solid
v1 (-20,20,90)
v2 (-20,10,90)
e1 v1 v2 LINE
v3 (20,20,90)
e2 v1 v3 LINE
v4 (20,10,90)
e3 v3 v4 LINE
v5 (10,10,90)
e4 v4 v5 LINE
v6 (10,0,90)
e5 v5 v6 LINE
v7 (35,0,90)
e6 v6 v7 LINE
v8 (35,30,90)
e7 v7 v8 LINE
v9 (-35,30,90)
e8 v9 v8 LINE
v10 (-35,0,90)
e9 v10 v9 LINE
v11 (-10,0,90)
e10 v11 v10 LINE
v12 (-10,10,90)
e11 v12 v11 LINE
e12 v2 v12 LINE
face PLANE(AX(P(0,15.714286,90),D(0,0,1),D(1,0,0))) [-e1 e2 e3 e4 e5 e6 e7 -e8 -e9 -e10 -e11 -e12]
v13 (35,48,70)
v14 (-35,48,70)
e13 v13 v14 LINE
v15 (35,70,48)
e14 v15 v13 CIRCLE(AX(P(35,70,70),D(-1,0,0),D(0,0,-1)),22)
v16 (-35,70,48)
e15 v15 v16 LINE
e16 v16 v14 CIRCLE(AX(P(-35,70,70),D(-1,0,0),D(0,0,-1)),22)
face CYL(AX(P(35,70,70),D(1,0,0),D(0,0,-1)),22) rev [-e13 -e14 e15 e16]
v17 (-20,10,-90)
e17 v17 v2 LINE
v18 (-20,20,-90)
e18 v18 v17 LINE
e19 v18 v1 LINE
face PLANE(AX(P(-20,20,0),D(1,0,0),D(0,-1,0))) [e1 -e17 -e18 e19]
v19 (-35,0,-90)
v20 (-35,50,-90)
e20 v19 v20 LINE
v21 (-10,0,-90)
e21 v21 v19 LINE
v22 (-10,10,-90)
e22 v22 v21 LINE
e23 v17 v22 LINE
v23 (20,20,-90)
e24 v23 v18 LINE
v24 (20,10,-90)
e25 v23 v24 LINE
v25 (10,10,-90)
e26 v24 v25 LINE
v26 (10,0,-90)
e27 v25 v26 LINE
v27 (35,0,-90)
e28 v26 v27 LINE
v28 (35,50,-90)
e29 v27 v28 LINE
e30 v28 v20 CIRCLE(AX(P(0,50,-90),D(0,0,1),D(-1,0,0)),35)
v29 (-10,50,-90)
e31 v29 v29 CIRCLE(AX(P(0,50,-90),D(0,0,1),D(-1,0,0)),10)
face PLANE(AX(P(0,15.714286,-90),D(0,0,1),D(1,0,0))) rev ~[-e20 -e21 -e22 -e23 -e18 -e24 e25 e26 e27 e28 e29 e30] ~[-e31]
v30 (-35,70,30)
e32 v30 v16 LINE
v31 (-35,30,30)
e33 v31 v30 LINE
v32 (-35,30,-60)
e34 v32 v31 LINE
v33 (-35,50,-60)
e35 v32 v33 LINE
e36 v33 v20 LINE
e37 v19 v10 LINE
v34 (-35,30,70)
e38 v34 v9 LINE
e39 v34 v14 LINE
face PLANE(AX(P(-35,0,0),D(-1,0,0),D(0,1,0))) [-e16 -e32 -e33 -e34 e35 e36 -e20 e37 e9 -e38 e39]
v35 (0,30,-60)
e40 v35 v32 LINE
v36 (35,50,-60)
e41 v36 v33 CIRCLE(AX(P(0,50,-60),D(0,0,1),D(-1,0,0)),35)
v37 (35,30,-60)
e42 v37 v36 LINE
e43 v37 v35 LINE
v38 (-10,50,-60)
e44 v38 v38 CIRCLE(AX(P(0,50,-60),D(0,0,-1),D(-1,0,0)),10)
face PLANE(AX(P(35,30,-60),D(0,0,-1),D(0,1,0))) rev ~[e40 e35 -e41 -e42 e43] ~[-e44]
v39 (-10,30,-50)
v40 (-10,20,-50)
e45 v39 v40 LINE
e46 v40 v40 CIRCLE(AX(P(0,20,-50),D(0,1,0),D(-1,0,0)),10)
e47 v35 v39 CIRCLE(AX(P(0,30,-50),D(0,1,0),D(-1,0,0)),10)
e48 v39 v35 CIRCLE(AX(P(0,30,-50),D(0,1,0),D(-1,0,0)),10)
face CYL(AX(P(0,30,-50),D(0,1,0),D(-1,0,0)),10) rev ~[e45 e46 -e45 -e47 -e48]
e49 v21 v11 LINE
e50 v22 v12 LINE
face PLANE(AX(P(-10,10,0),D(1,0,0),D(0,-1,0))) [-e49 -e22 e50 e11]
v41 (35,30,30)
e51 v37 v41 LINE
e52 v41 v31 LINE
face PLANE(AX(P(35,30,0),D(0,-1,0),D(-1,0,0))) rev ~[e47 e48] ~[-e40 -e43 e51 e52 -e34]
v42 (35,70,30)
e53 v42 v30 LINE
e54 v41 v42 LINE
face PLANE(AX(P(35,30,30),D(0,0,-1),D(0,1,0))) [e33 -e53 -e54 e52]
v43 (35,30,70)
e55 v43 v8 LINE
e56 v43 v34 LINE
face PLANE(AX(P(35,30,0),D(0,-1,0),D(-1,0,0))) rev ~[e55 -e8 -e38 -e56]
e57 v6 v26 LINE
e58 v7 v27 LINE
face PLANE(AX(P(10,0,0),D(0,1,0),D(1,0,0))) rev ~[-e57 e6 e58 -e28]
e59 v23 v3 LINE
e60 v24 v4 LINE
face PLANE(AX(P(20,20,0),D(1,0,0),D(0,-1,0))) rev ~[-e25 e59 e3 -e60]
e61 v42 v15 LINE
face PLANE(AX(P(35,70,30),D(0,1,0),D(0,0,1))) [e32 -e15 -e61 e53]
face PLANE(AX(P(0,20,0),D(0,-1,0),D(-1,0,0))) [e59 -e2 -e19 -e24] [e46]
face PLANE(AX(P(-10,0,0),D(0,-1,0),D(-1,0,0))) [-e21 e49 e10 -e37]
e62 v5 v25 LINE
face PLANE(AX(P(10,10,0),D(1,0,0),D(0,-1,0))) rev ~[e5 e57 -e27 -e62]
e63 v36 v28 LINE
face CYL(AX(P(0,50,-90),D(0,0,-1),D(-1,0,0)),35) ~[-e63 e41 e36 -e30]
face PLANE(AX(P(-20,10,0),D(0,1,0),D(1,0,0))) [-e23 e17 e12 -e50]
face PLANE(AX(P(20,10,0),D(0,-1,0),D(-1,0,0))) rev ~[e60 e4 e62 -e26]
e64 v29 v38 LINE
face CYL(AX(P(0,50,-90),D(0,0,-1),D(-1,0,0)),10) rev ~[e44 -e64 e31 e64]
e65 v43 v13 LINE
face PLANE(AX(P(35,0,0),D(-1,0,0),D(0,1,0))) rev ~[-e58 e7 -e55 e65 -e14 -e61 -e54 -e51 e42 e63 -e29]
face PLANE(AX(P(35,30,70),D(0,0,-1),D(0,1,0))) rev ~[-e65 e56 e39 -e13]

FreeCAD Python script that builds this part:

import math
import FreeCAD as App
import Part
import Sketcher
Q = App.Units.Quantity


def add_polygon(sketch, points):
    """Adds a closed chain of lines whose ends are joined by coincident constraints."""
    first, n = sketch.GeometryCount, len(points)
    for a, b in zip(points, points[1:] + points[:1]):
        sketch.addGeometry(Part.LineSegment(App.Vector(*a, 0), App.Vector(*b, 0)), False)
    for i in range(n):
        sketch.addConstraint(Sketcher.Constraint("Coincident", first + i, 2, first + (i + 1) % n, 1))

doc = App.newDocument("Part")
body = doc.addObject("PartDesign::Body", "Body")

sketch1 = doc.addObject("Sketcher::SketchObject", "Sketch")
body.addObject(sketch1)
sketch1.AttachmentSupport = (doc.XY_Plane, [""])
sketch1.MapMode = "FlatFace"
add_polygon(sketch1, [(10, 0), (35, 0), (35, 30), (-35, 30), (-35, 0), (-10, 0), (-10, 10), (-20, 10), (-20, 20), (20, 20), (20, 10), (10, 10)])
sketch1.addConstraint(Sketcher.Constraint("Horizontal", 0))
sketch1.addConstraint(Sketcher.Constraint("Vertical", 1))
sketch1.addConstraint(Sketcher.Constraint("Horizontal", 2))
sketch1.addConstraint(Sketcher.Constraint("Vertical", 3))
sketch1.addConstraint(Sketcher.Constraint("Horizontal", 4))
sketch1.addConstraint(Sketcher.Constraint("Vertical", 5))
sketch1.addConstraint(Sketcher.Constraint("Horizontal", 6))
sketch1.addConstraint(Sketcher.Constraint("Vertical", 7))
sketch1.addConstraint(Sketcher.Constraint("Horizontal", 8))
sketch1.addConstraint(Sketcher.Constraint("Vertical", 9))
sketch1.addConstraint(Sketcher.Constraint("Horizontal", 10))
sketch1.addConstraint(Sketcher.Constraint("Vertical", 11))
sketch1.addConstraint(Sketcher.Constraint("Symmetric", 0, 2, 3, 2, -1, 1))
sketch1.addConstraint(Sketcher.Constraint("Symmetric", 6, 2, 9, 2, -2))
sketch1.addConstraint(Sketcher.Constraint("Symmetric", 4, 2, 11, 2, -2))
sketch1.addConstraint(Sketcher.Constraint("Equal", 10, 5))
sketch1.addConstraint(Sketcher.Constraint("Equal", 5, 7))
sketch1.addConstraint(Sketcher.Constraint("DistanceX", 0, 1, 0, 2, Q("25 mm")))
sketch1.addConstraint(Sketcher.Constraint("DistanceX", 2, 2, 2, 1, Q("70 mm")))
sketch1.addConstraint(Sketcher.Constraint("DistanceX", 6, 2, 6, 1, Q("10 mm")))
sketch1.addConstraint(Sketcher.Constraint("DistanceY", 1, 1, 1, 2, Q("30 mm")))
pad1 = doc.addObject("PartDesign::Pad", "Pad")
body.addObject(pad1)
pad1.Profile = sketch1
pad1.Length = 180
pad1.Midplane = True

sketch2 = doc.addObject("Sketcher::SketchObject", "Sketch001")
body.addObject(sketch2)
sketch2.AttachmentSupport = (doc.YZ_Plane, [""])
sketch2.MapMode = "FlatFace"
sketch2.AttachmentOffset = App.Placement(App.Vector(0, 0, 35), App.Rotation())
sketch2.addGeometry(Part.LineSegment(App.Vector(48, 70, 0), App.Vector(30, 70, 0)), False)
sketch2.addGeometry(Part.LineSegment(App.Vector(30, 70, 0), App.Vector(30, 30, 0)), False)
sketch2.addGeometry(Part.LineSegment(App.Vector(30, 30, 0), App.Vector(70, 30, 0)), False)
sketch2.addGeometry(Part.LineSegment(App.Vector(70, 30, 0), App.Vector(70, 48, 0)), False)
sketch2.addGeometry(Part.ArcOfCircle(Part.Circle(App.Vector(70, 70, 0), App.Vector(0, 0, 1), 22), math.radians(180), math.radians(270)), False)
add_polygon(sketch2, [(50, -60), (30, -60), (30, -90), (50, -90)])
sketch2.addConstraint(Sketcher.Constraint("Coincident", 0, 2, 1, 1))
sketch2.addConstraint(Sketcher.Constraint("Coincident", 1, 2, 2, 1))
sketch2.addConstraint(Sketcher.Constraint("Coincident", 2, 2, 3, 1))
sketch2.addConstraint(Sketcher.Constraint("Coincident", 3, 2, 4, 2))
sketch2.addConstraint(Sketcher.Constraint("Coincident", 4, 1, 0, 1))
sketch2.addConstraint(Sketcher.Constraint("Horizontal", 0))
sketch2.addConstraint(Sketcher.Constraint("Vertical", 1))
sketch2.addConstraint(Sketcher.Constraint("Horizontal", 2))
sketch2.addConstraint(Sketcher.Constraint("Vertical", 3))
sketch2.addConstraint(Sketcher.Constraint("Horizontal", 5))
sketch2.addConstraint(Sketcher.Constraint("Vertical", 6))
sketch2.addConstraint(Sketcher.Constraint("Horizontal", 7))
sketch2.addConstraint(Sketcher.Constraint("Vertical", 8))
sketch2.addConstraint(Sketcher.Constraint("Horizontal", 4, 3, 0, 2))
sketch2.addConstraint(Sketcher.Constraint("Vertical", 4, 3, 2, 2))
sketch2.addConstraint(Sketcher.Constraint("Vertical", 1, 2, 5, 2))
sketch2.addConstraint(Sketcher.Constraint("Equal", 2, 1))
sketch2.addConstraint(Sketcher.Constraint("Radius", 4, Q("22 mm")))
sketch2.addConstraint(Sketcher.Constraint("DistanceX", 0, 2, 0, 1, Q("18 mm")))
sketch2.addConstraint(Sketcher.Constraint("DistanceX", 5, 2, 5, 1, Q("20 mm")))
sketch2.addConstraint(Sketcher.Constraint("DistanceY", 6, 2, 6, 1, Q("30 mm")))
sketch2.addConstraint(Sketcher.Constraint("DistanceX", -1, 1, 4, 3, Q("70 mm")))
sketch2.addConstraint(Sketcher.Constraint("DistanceY", -1, 1, 4, 3, Q("70 mm")))
sketch2.addConstraint(Sketcher.Constraint("DistanceY", 5, 2, -1, 1, Q("60 mm")))
pad2 = doc.addObject("PartDesign::Pad", "Pad001")
body.addObject(pad2)
pad2.Profile = sketch2
pad2.Length = 70
pad2.Reversed = True

sketch3 = doc.addObject("Sketcher::SketchObject", "Sketch002")
body.addObject(sketch3)
sketch3.AttachmentSupport = (doc.XY_Plane, [""])
sketch3.MapMode = "FlatFace"
sketch3.AttachmentOffset = App.Placement(App.Vector(0, 0, -90), App.Rotation())
sketch3.addGeometry(Part.Circle(App.Vector(0, 50, 0), App.Vector(0, 0, 1), 10), False)
sketch3.addConstraint(Sketcher.Constraint("PointOnObject", 0, 3, -2))
sketch3.addConstraint(Sketcher.Constraint("Diameter", 0, Q("20 mm")))
sketch3.addConstraint(Sketcher.Constraint("DistanceY", -1, 1, 0, 3, Q("50 mm")))
pocket1 = doc.addObject("PartDesign::Pocket", "Pocket")
body.addObject(pocket1)
pocket1.Profile = sketch3
pocket1.Length = 30
pocket1.Reversed = True

sketch4 = doc.addObject("Sketcher::SketchObject", "Sketch003")
body.addObject(sketch4)
sketch4.AttachmentSupport = (doc.XY_Plane, [""])
sketch4.MapMode = "FlatFace"
sketch4.AttachmentOffset = App.Placement(App.Vector(0, 0, -90), App.Rotation())
sketch4.addGeometry(Part.ArcOfCircle(Part.Circle(App.Vector(0, 50, 0), App.Vector(0, 0, 1), 10), math.radians(0), math.radians(180)), False)
sketch4.addGeometry(Part.LineSegment(App.Vector(-10, 50, 0), App.Vector(-35, 50, 0)), False)
sketch4.addGeometry(Part.ArcOfCircle(Part.Circle(App.Vector(0, 50, 0), App.Vector(0, 0, 1), 35), math.radians(0), math.radians(180)), False)
sketch4.addGeometry(Part.LineSegment(App.Vector(35, 50, 0), App.Vector(10, 50, 0)), False)
sketch4.addConstraint(Sketcher.Constraint("Coincident", 0, 2, 1, 1))
sketch4.addConstraint(Sketcher.Constraint("Coincident", 1, 2, 2, 2))
sketch4.addConstraint(Sketcher.Constraint("Coincident", 2, 1, 3, 1))
sketch4.addConstraint(Sketcher.Constraint("Coincident", 3, 2, 0, 1))
sketch4.addConstraint(Sketcher.Constraint("Horizontal", 1))
sketch4.addConstraint(Sketcher.Constraint("Horizontal", 3))
sketch4.addConstraint(Sketcher.Constraint("Coincident", 2, 3, 0, 3))
sketch4.addConstraint(Sketcher.Constraint("Symmetric", 1, 2, 2, 1, -2))
sketch4.addConstraint(Sketcher.Constraint("Horizontal", 2, 3, 0, 2))
sketch4.addConstraint(Sketcher.Constraint("Radius", 0, Q("10 mm")))
sketch4.addConstraint(Sketcher.Constraint("Radius", 2, Q("35 mm")))
sketch4.addConstraint(Sketcher.Constraint("DistanceY", -1, 1, 0, 3, Q("50 mm")))
pad3 = doc.addObject("PartDesign::Pad", "Pad002")
body.addObject(pad3)
pad3.Profile = sketch4
pad3.Length = 30

sketch5 = doc.addObject("Sketcher::SketchObject", "Sketch004")
body.addObject(sketch5)
sketch5.AttachmentSupport = (doc.XZ_Plane, [""])
sketch5.MapMode = "FlatFace"
sketch5.AttachmentOffset = App.Placement(App.Vector(0, 0, -30), App.Rotation())
sketch5.addGeometry(Part.Circle(App.Vector(0, -50, 0), App.Vector(0, 0, 1), 10), False)
sketch5.addConstraint(Sketcher.Constraint("PointOnObject", 0, 3, -2))
sketch5.addConstraint(Sketcher.Constraint("Diameter", 0, Q("20 mm")))
sketch5.addConstraint(Sketcher.Constraint("DistanceY", 0, 3, -1, 1, Q("50 mm")))
pocket2 = doc.addObject("PartDesign::Pocket", "Pocket001")
body.addObject(pocket2)
pocket2.Profile = sketch5
pocket2.Length = 30
pocket2.Reversed = True

doc.recompute()
